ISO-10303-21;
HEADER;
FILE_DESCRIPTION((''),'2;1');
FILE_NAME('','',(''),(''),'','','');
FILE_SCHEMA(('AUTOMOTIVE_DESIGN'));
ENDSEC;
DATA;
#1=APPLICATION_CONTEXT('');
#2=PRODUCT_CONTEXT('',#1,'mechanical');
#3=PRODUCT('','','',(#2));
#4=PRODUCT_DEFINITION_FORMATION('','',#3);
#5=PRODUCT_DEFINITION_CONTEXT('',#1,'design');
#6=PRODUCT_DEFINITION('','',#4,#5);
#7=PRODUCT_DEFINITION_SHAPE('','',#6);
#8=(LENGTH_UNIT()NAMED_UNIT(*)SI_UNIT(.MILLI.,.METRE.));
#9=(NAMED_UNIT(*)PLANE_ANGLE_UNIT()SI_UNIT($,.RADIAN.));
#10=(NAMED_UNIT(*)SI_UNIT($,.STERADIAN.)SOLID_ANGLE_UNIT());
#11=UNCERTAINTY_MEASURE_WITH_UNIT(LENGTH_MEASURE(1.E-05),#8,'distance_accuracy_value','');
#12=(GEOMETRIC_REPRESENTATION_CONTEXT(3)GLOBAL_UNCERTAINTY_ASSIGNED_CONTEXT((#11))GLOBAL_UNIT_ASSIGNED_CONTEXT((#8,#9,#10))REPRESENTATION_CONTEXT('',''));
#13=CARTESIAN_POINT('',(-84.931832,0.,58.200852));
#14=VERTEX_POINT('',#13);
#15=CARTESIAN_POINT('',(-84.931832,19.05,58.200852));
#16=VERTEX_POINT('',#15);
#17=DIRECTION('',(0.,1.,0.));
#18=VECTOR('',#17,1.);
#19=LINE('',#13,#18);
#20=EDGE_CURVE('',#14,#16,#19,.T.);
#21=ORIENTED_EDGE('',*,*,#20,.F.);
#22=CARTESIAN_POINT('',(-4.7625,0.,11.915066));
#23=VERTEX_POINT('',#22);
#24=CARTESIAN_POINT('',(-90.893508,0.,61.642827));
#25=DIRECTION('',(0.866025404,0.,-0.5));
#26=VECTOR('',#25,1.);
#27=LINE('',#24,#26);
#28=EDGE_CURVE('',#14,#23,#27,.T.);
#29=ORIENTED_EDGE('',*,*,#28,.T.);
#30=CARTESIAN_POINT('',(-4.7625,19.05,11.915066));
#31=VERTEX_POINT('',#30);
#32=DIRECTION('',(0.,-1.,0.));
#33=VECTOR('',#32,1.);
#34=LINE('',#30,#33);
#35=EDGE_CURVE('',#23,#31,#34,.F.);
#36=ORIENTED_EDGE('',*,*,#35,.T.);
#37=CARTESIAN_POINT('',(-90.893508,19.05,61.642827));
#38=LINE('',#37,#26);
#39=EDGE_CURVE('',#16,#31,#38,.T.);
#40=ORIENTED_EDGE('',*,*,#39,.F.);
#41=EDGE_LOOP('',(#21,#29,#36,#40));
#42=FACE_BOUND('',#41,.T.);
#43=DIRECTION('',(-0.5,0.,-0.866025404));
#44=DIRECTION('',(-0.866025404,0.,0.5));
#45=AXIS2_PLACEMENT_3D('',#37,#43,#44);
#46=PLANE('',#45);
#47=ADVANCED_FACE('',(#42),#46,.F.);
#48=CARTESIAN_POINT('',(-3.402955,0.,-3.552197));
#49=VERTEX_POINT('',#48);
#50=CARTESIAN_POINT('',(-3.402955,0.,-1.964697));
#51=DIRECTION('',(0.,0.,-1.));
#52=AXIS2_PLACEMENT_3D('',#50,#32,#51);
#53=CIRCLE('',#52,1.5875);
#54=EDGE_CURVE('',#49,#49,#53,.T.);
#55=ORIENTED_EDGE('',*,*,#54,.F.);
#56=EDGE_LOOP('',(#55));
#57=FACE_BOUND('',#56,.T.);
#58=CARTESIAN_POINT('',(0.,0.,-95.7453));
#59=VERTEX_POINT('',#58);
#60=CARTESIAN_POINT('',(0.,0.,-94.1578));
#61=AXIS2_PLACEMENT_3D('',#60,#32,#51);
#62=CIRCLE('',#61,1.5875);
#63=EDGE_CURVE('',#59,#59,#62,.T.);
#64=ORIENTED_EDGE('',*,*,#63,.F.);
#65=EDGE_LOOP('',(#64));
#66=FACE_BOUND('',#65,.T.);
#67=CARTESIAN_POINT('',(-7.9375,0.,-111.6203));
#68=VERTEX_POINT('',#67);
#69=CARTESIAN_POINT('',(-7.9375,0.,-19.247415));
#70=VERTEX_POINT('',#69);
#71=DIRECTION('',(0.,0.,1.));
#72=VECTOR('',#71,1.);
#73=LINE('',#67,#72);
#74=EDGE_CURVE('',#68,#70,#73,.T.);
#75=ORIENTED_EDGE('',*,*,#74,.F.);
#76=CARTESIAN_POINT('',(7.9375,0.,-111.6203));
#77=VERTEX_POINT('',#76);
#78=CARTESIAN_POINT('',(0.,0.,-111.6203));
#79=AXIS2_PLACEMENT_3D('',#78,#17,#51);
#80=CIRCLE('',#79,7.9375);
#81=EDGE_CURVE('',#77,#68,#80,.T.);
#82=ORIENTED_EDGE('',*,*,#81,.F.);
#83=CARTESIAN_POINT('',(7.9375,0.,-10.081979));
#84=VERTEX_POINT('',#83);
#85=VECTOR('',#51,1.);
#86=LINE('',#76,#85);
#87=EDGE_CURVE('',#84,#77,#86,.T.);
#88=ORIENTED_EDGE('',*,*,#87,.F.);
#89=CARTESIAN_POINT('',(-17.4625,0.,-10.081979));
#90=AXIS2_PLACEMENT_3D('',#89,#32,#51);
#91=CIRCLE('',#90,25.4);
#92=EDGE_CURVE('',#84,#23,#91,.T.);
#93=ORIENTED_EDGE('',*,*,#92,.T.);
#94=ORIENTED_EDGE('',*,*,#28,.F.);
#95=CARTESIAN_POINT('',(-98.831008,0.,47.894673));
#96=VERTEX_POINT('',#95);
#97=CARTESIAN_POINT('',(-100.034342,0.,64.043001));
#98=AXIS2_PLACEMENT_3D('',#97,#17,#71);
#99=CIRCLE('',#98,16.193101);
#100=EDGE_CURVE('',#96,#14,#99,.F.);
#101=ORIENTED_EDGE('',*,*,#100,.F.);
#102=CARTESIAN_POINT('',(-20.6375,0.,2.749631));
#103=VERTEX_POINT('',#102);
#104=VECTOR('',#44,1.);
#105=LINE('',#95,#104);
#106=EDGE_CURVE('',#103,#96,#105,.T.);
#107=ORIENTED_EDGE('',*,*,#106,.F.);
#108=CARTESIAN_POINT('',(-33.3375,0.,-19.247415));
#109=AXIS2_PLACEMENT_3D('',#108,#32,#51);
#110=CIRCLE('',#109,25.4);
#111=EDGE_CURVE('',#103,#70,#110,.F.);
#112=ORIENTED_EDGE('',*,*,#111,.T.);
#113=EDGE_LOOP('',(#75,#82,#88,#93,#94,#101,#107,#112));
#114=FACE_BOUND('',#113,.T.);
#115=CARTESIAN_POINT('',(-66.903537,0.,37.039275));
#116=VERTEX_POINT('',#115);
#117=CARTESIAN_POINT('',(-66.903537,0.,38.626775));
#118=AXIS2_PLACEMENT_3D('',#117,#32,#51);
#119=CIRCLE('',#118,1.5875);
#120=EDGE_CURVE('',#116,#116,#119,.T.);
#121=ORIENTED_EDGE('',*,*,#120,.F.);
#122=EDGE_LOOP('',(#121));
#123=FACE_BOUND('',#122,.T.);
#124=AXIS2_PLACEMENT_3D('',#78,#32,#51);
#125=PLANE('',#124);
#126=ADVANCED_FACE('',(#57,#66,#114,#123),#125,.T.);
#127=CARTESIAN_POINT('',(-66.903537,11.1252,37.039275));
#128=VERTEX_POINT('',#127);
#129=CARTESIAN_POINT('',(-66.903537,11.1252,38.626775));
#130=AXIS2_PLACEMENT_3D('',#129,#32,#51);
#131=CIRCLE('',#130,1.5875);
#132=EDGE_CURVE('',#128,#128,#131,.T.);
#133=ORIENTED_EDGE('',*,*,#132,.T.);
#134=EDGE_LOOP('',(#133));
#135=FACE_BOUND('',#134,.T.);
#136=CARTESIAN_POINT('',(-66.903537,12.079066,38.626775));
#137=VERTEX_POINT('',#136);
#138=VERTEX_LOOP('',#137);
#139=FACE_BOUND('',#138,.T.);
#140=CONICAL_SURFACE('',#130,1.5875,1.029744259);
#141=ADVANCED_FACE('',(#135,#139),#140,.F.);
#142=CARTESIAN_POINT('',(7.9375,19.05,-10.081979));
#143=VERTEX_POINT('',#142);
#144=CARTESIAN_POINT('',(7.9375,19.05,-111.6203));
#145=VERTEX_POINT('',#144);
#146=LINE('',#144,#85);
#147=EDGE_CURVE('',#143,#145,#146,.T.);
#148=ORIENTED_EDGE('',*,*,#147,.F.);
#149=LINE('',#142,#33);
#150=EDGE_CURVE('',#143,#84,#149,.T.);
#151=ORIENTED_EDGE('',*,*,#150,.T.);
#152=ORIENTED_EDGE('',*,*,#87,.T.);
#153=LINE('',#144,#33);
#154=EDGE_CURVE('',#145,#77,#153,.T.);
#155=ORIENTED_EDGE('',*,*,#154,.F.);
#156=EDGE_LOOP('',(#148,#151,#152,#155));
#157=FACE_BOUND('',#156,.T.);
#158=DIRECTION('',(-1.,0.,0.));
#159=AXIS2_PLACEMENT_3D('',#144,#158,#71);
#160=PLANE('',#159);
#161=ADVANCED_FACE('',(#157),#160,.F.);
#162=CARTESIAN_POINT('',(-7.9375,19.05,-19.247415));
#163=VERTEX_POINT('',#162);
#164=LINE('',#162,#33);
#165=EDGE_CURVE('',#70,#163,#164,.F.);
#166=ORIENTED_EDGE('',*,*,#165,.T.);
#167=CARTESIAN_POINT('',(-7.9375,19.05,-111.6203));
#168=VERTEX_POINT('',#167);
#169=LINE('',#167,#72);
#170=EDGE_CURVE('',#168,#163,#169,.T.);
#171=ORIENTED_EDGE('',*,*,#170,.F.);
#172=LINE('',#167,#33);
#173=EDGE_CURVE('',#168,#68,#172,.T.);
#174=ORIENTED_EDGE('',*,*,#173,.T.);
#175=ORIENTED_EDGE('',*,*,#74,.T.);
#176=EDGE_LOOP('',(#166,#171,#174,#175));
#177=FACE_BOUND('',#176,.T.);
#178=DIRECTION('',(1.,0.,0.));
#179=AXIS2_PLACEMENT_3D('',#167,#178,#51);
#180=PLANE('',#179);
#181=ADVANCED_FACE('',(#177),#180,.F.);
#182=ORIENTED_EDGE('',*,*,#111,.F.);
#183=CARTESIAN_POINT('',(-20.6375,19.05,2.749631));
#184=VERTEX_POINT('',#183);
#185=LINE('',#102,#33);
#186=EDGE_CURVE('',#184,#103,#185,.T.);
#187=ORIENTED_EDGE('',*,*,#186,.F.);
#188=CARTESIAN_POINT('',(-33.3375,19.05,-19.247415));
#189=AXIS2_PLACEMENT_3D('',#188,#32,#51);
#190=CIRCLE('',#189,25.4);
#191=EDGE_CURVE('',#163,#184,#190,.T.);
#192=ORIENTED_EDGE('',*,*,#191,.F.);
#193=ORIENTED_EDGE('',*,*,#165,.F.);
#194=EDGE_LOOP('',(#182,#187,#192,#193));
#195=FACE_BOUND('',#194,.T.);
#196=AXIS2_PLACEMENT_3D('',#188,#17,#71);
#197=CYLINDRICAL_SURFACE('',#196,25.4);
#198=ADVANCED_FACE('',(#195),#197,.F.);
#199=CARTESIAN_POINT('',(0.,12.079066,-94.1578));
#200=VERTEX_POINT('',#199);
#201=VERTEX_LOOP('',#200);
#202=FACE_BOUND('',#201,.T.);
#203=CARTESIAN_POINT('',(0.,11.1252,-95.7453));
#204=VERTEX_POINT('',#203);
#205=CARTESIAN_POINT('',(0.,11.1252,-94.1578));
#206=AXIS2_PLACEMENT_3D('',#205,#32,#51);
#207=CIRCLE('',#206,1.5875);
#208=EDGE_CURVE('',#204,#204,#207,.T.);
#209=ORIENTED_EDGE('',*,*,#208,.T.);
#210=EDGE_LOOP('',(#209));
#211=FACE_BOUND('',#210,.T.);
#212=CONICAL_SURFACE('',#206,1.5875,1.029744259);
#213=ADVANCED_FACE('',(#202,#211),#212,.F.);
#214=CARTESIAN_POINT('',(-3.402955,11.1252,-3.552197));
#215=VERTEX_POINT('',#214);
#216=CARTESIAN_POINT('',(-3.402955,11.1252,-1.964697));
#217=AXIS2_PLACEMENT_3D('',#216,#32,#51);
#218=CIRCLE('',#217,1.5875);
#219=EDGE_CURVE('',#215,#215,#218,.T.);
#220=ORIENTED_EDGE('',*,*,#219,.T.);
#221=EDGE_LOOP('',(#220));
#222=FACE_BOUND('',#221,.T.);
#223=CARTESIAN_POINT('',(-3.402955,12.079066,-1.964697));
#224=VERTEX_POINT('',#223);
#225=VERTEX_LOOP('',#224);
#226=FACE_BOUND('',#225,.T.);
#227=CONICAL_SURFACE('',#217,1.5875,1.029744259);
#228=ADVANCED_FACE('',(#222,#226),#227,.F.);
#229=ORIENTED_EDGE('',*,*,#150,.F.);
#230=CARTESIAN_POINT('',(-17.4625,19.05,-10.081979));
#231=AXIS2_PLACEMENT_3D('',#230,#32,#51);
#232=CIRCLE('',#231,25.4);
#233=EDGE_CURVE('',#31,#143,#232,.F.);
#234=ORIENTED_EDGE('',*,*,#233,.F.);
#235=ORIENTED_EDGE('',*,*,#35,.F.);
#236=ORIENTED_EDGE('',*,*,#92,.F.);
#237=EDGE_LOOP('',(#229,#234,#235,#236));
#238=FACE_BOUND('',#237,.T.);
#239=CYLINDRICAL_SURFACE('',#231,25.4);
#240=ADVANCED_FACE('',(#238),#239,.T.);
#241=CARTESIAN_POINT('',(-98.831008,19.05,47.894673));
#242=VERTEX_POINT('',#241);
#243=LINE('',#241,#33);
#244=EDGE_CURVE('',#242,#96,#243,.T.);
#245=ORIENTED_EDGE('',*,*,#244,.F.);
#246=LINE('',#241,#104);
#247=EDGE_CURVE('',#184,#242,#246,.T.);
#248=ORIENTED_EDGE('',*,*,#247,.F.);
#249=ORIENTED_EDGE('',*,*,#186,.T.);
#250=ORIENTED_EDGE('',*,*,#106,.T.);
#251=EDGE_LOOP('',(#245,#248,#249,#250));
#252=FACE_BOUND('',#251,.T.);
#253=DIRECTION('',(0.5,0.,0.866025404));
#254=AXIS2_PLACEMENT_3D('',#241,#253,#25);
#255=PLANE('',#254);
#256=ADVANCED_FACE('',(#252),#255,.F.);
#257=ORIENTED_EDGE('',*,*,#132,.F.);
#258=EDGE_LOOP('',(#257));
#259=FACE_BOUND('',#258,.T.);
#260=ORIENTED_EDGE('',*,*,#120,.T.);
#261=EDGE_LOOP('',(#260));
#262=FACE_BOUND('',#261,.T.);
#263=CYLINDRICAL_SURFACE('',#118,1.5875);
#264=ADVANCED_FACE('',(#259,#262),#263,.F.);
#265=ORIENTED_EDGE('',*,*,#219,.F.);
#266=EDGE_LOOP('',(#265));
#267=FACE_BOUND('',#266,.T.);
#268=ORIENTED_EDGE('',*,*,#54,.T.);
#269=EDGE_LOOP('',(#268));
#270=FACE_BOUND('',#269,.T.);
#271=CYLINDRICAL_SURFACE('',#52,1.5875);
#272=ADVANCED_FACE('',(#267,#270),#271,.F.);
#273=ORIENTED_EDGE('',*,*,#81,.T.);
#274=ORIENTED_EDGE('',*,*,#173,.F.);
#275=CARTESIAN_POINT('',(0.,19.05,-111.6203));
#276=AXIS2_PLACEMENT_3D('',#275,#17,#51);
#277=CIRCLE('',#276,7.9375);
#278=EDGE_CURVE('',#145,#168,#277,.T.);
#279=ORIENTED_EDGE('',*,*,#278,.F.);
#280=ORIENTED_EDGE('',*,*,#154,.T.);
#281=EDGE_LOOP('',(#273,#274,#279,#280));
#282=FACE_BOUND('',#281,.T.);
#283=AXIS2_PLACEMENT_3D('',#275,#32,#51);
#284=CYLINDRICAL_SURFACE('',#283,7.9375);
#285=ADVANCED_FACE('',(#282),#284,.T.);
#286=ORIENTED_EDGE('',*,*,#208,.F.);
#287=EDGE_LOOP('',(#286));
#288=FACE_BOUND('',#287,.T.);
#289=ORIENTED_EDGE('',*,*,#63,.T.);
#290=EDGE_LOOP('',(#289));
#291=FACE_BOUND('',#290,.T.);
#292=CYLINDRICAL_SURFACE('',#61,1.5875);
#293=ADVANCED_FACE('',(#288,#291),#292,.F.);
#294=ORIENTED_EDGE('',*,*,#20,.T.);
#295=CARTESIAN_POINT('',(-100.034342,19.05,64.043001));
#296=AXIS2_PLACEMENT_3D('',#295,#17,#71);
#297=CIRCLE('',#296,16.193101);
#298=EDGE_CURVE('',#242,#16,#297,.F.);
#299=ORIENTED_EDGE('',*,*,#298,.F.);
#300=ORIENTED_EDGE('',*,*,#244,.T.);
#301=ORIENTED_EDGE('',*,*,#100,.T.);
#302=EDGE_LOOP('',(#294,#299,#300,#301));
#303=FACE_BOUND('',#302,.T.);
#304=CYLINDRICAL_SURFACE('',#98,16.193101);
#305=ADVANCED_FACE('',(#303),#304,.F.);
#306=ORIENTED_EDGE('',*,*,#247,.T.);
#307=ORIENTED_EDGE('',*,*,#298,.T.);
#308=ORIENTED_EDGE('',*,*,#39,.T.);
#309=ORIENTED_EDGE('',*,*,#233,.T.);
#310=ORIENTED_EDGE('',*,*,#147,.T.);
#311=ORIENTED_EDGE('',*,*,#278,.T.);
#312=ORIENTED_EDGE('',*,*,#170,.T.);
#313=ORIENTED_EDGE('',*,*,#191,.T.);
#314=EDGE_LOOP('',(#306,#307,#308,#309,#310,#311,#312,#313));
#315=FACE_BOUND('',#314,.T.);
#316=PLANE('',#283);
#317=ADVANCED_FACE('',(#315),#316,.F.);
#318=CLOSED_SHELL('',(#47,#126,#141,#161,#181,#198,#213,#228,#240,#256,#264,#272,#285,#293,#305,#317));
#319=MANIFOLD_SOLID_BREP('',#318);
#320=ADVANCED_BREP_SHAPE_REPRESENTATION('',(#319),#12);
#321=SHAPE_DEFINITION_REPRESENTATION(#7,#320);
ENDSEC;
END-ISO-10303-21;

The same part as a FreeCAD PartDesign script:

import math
import FreeCAD as App
import Part
import Sketcher

V = App.Vector
Q = App.Units.Quantity


def edges_at(feature, points):
    """Names of the edges that pass closest to the given points."""
    edges = feature.Shape.Edges
    near = lambda p: min(range(len(edges)), key=lambda i: edges[i].distToShape(Part.Vertex(*p))[0])
    return sorted({f"Edge{near(p) + 1}" for p in points})

doc = App.newDocument("Part")
body = doc.addObject("PartDesign::Body", "Body")

sketch1 = body.newObject("Sketcher::SketchObject", "Sketch")
sketch1.AttachmentSupport = (doc.getObject("XZ_Plane"), [""])
sketch1.MapMode = "FlatFace"
sketch1.addGeometry(Part.LineSegment(V(8, 5, 0), V(8, -112, 0)), False)
sketch1.addGeometry(Part.ArcOfCircle(Part.Circle(V(0, -112, 0), V(0, 0, 1), 8), math.radians(180), math.radians(360)), False)
sketch1.addGeometry(Part.LineSegment(V(-8, -112, 0), V(-8, -5, 0)), False)
sketch1.addGeometry(Part.LineSegment(V(-8, -5, 0), V(-99, 48, 0)), False)
sketch1.addGeometry(Part.ArcOfCircle(Part.Circle(V(-95, 55, 0), V(0, 0, 1), 8), math.radians(60), math.radians(240)), False)
sketch1.addGeometry(Part.LineSegment(V(-91, 62, 0), V(8, 5, 0)), False)
sketch1.addConstraint(Sketcher.Constraint("Tangent", 0, 2, 1, 2))
sketch1.addConstraint(Sketcher.Constraint("Tangent", 1, 1, 2, 1))
sketch1.addConstraint(Sketcher.Constraint("Coincident", 2, 2, 3, 1))
sketch1.addConstraint(Sketcher.Constraint("Tangent", 3, 2, 4, 2))
sketch1.addConstraint(Sketcher.Constraint("Tangent", 4, 1, 5, 1))
sketch1.addConstraint(Sketcher.Constraint("Coincident", 5, 2, 0, 1))
sketch1.addConstraint(Sketcher.Constraint("Vertical", 0))
sketch1.addConstraint(Sketcher.Constraint("Vertical", 2))
sketch1.addConstraint(Sketcher.Constraint("Equal", 1, 4))
sketch1.addConstraint(Sketcher.Constraint("Symmetric", 2, 2, 5, 2, -1, 1))
sketch1.addConstraint(Sketcher.Constraint("Parallel", 3, 5))
sketch1.addConstraint(Sketcher.Constraint("Angle", 3, Q("150 deg")))
sketch1.addConstraint(Sketcher.Constraint("Radius", 1, Q("0.3125 in")))
sketch1.addConstraint(Sketcher.Constraint("DistanceY", -1, 1, 4, 3, Q("2.15625 in")))
sketch1.addConstraint(Sketcher.Constraint("DistanceY", 1, 3, -1, 1, Q("4.3945 in")))
pad1 = body.newObject("PartDesign::Pad", "Pad")
pad1.Profile = sketch1
pad1.Length = Q("0.75 in")
pad1.Reversed = True

sketch2 = body.newObject("Sketcher::SketchObject", "Sketch001")
sketch2.AttachmentSupport = (doc.getObject("XZ_Plane"), [""])
sketch2.MapMode = "FlatFace"
sketch2.AttachmentOffset = App.Placement(V(0, 0, -0.75 * 25.4), App.Rotation())
sketch2.addGeometry(Part.LineSegment(V(-91, 62, 0), V(-85, 58, 0)), False)
sketch2.addGeometry(Part.ArcOfCircle(Part.Circle(V(-100, 64, 0), V(0, 0, 1), 16), math.radians(-86), math.radians(-21)), False)
sketch2.addGeometry(Part.ArcOfCircle(Part.Circle(V(-95, 55, 0), V(0, 0, 1), 8), math.radians(60), math.radians(240)), False)
sketch2.addConstraint(Sketcher.Constraint("Coincident", 0, 2, 1, 2))
sketch2.addConstraint(Sketcher.Constraint("Coincident", 1, 1, 2, 2))
sketch2.addConstraint(Sketcher.Constraint("Tangent", 2, 1, 0, 1))
sketch2.addConstraint(Sketcher.Constraint("Angle", 0, Q("-30 deg")))
sketch2.addConstraint(Sketcher.Constraint("Radius", 2, Q("0.3125 in")))
sketch2.addConstraint(Sketcher.Constraint("Radius", 1, 16.193101))
sketch2.addConstraint(Sketcher.Constraint("DistanceY", -1, 1, 2, 3, Q("2.15625 in")))
sketch2.addConstraint(Sketcher.Constraint("DistanceX", 1, 1, 2, 3, Q("0.15625 in")))
sketch2.addConstraint(Sketcher.Constraint("DistanceY", -1, 1, 1, 3, 64.043001))
sketch2.addConstraint(Sketcher.Constraint("DistanceX", 1, 3, -1, 1, 100.034342))
pocket1 = body.newObject("PartDesign::Pocket", "Pocket")
pocket1.Profile = sketch2
pocket1.Type = "ThroughAll"
pocket1.Reversed = True
doc.recompute()

fillet = body.newObject("PartDesign::Fillet", "Fillet")
fillet.Base = (pocket1, edges_at(pocket1, [(7.938, 9.525, 4.583), (-7.938, 9.525, -4.583)]))
fillet.Radius = Q("1 in")

sketch3 = body.newObject("Sketcher::SketchObject", "Sketch002")
sketch3.AttachmentSupport = (doc.getObject("XZ_Plane"), [""])
sketch3.MapMode = "FlatFace"
sketch3.addGeometry(Part.Circle(V(0, -94.2, 0), V(0, 0, 1), 1.6), False)
sketch3.addGeometry(Part.Circle(V(-66.9, 38.6, 0), V(0, 0, 1), 1.6), False)
sketch3.addGeometry(Part.Circle(V(-3.4, -2, 0), V(0, 0, 1), 1.6), False)
sketch3.addConstraint(Sketcher.Constraint("Equal", 0, 1))
sketch3.addConstraint(Sketcher.Constraint("Equal", 1, 2))
sketch3.addConstraint(Sketcher.Constraint("PointOnObject", 0, 3, -2))
sketch3.addConstraint(Sketcher.Constraint("Diameter", 0, Q("0.125 in")))
sketch3.addConstraint(Sketcher.Constraint("DistanceY", 0, 3, -1, 1, Q("3.707 in")))
sketch3.addConstraint(Sketcher.Constraint("DistanceY", 2, 3, 1, 3, 40.591472))
sketch3.addConstraint(Sketcher.Constraint("DistanceX", 1, 3, -1, 1, 66.903537))
sketch3.addConstraint(Sketcher.Constraint("DistanceY", -1, 1, 1, 3, 38.626775))
sketch3.addConstraint(Sketcher.Constraint("DistanceX", 2, 3, -1, 1, 3.402955))
doc.recompute()
hole = body.newObject("PartDesign::Hole", "Hole")
hole.Profile = sketch3
hole.ThreadType = "None"
hole.Diameter = Q("0.125 in")
hole.DepthType = "Dimension"
hole.Depth = Q("0.438 in")
hole.DrillPoint = "Angled"
hole.DrillPointAngle = 118

doc.recompute()
